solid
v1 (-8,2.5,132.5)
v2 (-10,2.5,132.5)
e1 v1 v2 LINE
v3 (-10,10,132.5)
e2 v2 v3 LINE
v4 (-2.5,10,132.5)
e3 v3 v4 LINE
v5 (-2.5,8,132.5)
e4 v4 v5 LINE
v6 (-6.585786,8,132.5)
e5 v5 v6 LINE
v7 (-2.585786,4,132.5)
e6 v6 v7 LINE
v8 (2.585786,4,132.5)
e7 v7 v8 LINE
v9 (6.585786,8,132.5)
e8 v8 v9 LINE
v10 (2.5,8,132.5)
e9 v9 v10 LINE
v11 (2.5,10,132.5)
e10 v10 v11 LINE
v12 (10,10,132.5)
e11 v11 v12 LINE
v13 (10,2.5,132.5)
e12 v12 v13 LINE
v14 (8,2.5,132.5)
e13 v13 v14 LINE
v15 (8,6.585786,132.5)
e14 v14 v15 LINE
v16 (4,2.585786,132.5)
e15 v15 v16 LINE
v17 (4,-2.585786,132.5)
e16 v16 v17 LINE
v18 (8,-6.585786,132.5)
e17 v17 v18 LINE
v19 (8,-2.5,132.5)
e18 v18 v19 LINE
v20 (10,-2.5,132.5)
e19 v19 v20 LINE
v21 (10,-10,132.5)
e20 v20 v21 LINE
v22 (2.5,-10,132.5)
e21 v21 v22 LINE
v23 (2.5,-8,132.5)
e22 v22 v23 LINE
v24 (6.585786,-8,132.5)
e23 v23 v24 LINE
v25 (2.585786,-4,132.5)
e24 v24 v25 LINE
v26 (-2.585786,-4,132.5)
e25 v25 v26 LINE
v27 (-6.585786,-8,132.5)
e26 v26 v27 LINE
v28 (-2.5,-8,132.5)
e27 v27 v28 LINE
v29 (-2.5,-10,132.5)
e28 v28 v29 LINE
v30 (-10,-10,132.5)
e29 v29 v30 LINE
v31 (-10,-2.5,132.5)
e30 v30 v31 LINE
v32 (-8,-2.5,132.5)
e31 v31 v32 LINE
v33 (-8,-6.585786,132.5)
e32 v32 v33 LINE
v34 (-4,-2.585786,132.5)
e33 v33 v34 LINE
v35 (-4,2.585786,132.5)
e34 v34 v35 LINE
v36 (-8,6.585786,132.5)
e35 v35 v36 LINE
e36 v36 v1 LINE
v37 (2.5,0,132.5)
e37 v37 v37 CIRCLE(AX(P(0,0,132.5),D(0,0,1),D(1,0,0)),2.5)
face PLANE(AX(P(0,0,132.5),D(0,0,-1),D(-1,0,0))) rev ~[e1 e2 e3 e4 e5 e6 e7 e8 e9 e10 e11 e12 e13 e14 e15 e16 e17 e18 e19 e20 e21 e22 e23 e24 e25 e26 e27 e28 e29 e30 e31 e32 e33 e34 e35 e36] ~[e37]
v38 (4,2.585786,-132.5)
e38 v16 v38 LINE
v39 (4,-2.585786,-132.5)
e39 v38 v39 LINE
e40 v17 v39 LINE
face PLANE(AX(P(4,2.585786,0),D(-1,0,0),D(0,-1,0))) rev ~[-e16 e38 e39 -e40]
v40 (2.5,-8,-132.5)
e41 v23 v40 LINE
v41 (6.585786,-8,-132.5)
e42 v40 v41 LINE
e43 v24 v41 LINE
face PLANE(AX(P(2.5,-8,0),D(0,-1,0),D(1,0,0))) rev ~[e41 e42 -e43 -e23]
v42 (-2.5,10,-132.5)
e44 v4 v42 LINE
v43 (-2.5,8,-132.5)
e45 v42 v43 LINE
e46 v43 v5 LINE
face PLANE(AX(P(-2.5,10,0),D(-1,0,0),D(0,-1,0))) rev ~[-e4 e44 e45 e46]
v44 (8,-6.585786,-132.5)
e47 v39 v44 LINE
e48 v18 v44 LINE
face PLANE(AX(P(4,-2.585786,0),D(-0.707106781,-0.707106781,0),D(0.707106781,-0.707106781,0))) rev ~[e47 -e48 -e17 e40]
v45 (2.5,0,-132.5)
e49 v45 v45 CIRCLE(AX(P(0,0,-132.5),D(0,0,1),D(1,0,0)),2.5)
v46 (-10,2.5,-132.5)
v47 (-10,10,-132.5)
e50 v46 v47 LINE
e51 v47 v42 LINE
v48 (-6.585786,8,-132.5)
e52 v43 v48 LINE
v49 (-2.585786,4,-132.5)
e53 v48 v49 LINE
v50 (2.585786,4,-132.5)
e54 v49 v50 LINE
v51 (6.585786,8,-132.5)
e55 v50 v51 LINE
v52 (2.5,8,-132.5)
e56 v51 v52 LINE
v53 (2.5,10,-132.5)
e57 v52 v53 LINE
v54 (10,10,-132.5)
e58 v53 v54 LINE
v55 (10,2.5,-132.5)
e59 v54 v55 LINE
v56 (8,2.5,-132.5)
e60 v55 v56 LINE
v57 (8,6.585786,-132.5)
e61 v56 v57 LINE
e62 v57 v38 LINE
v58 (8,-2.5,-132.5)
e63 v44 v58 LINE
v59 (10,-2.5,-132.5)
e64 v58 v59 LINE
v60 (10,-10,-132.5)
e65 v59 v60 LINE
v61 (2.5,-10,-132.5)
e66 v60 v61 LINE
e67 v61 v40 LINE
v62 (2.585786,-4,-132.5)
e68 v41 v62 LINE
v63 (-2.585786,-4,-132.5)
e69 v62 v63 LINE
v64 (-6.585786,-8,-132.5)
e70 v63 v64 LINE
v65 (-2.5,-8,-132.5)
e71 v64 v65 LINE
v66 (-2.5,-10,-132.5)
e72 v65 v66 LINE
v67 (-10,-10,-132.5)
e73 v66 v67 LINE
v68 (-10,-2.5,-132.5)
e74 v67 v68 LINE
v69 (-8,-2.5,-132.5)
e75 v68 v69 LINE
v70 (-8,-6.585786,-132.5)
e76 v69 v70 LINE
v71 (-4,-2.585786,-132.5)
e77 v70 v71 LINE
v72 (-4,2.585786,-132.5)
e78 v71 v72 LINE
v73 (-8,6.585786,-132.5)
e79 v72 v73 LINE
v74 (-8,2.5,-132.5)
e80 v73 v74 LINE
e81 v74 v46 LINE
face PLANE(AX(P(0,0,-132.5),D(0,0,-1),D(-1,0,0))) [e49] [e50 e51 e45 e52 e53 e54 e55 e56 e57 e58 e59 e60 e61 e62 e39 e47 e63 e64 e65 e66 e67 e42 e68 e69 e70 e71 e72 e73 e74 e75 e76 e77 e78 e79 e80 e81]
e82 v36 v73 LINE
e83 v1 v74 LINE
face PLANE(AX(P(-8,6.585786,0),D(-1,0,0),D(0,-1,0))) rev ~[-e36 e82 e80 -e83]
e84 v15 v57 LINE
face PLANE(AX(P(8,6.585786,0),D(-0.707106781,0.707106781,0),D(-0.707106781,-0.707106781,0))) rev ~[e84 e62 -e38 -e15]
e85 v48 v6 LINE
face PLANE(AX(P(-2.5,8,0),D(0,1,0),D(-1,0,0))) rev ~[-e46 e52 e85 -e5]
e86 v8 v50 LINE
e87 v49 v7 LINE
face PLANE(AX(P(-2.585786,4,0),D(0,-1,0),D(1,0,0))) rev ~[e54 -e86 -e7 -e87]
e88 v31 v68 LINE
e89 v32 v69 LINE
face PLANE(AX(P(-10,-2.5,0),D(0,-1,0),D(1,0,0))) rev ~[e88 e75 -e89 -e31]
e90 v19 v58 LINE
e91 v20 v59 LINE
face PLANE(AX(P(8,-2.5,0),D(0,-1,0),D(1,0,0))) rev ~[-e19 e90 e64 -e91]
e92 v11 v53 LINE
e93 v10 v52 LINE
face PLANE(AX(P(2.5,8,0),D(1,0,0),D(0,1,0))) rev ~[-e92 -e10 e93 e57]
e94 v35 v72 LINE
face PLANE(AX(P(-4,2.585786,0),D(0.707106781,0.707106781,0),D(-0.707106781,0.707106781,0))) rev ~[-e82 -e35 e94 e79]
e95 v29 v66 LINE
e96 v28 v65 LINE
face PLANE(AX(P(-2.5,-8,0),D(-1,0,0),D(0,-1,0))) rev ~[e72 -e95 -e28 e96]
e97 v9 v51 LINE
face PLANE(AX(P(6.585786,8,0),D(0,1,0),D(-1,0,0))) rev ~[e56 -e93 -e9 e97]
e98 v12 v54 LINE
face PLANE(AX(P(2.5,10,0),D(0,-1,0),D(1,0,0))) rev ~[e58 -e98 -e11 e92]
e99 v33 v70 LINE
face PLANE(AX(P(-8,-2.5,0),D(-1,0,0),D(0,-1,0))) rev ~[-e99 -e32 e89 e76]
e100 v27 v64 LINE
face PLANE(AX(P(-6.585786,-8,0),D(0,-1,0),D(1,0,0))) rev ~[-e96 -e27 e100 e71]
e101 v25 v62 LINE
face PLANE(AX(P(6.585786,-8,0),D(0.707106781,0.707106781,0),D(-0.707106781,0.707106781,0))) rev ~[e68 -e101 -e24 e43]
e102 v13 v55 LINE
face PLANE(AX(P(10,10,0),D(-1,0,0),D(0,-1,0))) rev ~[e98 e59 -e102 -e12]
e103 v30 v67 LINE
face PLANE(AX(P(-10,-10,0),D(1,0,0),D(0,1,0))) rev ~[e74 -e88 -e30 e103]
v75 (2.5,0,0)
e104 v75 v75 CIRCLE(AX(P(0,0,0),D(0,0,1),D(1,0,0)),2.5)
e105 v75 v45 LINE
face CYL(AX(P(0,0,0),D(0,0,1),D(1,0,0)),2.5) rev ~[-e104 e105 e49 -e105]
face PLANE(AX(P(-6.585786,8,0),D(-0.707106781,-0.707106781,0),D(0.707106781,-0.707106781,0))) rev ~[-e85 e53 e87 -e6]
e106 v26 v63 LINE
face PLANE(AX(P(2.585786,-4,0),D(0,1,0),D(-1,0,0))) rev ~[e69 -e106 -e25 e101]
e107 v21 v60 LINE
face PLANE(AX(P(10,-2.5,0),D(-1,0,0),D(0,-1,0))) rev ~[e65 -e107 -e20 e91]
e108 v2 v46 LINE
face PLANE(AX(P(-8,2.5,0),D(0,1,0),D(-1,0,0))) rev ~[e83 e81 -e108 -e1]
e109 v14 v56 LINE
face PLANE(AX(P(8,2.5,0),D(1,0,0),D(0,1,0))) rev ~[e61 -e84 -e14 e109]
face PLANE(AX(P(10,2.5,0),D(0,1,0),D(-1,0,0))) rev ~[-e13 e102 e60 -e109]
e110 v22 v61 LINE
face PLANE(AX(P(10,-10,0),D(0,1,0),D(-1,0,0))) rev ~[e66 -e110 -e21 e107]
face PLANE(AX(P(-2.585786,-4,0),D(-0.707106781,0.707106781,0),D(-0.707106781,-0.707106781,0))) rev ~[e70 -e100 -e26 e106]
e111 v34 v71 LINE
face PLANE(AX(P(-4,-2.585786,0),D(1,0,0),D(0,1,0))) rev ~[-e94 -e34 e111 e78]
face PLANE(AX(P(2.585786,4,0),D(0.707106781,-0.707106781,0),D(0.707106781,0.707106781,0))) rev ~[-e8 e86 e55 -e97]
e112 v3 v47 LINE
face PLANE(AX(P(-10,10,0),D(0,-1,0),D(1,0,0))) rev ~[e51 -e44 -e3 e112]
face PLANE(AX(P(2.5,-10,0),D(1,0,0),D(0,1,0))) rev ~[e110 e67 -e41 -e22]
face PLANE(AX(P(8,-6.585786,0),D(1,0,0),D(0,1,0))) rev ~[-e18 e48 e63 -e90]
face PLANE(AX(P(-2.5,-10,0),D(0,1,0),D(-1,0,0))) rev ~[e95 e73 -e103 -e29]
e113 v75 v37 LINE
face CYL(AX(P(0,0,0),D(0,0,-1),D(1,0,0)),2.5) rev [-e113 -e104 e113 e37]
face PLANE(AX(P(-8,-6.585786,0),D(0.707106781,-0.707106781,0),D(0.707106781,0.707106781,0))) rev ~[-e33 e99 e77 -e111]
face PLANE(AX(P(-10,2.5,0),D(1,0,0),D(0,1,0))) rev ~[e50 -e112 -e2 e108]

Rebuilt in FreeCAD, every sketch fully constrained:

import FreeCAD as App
import Part
import Sketcher

doc = App.newDocument("Part")
params = doc.addObject("Spreadsheet::Sheet", "Params")
for row, (alias, value) in enumerate([
    ("sketch1_width", "2 mm"),
    ("sketch1_width2", "7.5 mm"),
    ("pad1_length", "265 mm"),
    ("sketch2_diameter", "5 mm"),
], start=1):
    params.set(f"A{row}", alias)
    params.set(f"B{row}", "=" + value)
    params.setAlias(f"B{row}", alias)

body = doc.addObject("PartDesign::Body", "Body")

# Sketch on XY plane
sketch1 = body.newObject("Sketcher::SketchObject", "Sketch")
sketch1.AttachmentSupport = (doc.getObject("XY_Plane"), [""])
sketch1.MapMode = "FlatFace"
sketch1.addGeometry([
    Part.LineSegment(App.Vector(2.6, 4, 0), App.Vector(-2.6, 4, 0)),  # 0
    Part.LineSegment(App.Vector(-2.6, 4, 0), App.Vector(-6.6, 8, 0)),  # 1
    Part.LineSegment(App.Vector(-6.6, 8, 0), App.Vector(-2.5, 8, 0)),  # 2
    Part.LineSegment(App.Vector(-2.5, 8, 0), App.Vector(-2.5, 10, 0)),  # 3
    Part.LineSegment(App.Vector(-2.5, 10, 0), App.Vector(-10, 10, 0)),  # 4
    Part.LineSegment(App.Vector(-10, 10, 0), App.Vector(-10, 2.5, 0)),  # 5
    Part.LineSegment(App.Vector(-10, 2.5, 0), App.Vector(-8, 2.5, 0)),  # 6
    Part.LineSegment(App.Vector(-8, 2.5, 0), App.Vector(-8, 6.6, 0)),  # 7
    Part.LineSegment(App.Vector(-8, 6.6, 0), App.Vector(-4, 2.6, 0)),  # 8
    Part.LineSegment(App.Vector(-4, 2.6, 0), App.Vector(-4, -2.6, 0)),  # 9
    Part.LineSegment(App.Vector(-4, -2.6, 0), App.Vector(-8, -6.6, 0)),  # 10
    Part.LineSegment(App.Vector(-8, -6.6, 0), App.Vector(-8, -2.5, 0)),  # 11
    Part.LineSegment(App.Vector(-8, -2.5, 0), App.Vector(-10, -2.5, 0)),  # 12
    Part.LineSegment(App.Vector(-10, -2.5, 0), App.Vector(-10, -10, 0)),  # 13
    Part.LineSegment(App.Vector(-10, -10, 0), App.Vector(-2.5, -10, 0)),  # 14
    Part.LineSegment(App.Vector(-2.5, -10, 0), App.Vector(-2.5, -8, 0)),  # 15
    Part.LineSegment(App.Vector(-2.5, -8, 0), App.Vector(-6.6, -8, 0)),  # 16
    Part.LineSegment(App.Vector(-6.6, -8, 0), App.Vector(-2.6, -4, 0)),  # 17
    Part.LineSegment(App.Vector(-2.6, -4, 0), App.Vector(2.6, -4, 0)),  # 18
    Part.LineSegment(App.Vector(2.6, -4, 0), App.Vector(6.6, -8, 0)),  # 19
    Part.LineSegment(App.Vector(6.6, -8, 0), App.Vector(2.5, -8, 0)),  # 20
    Part.LineSegment(App.Vector(2.5, -8, 0), App.Vector(2.5, -10, 0)),  # 21
    Part.LineSegment(App.Vector(2.5, -10, 0), App.Vector(10, -10, 0)),  # 22
    Part.LineSegment(App.Vector(10, -10, 0), App.Vector(10, -2.5, 0)),  # 23
    Part.LineSegment(App.Vector(10, -2.5, 0), App.Vector(8, -2.5, 0)),  # 24
    Part.LineSegment(App.Vector(8, -2.5, 0), App.Vector(8, -6.6, 0)),  # 25
    Part.LineSegment(App.Vector(8, -6.6, 0), App.Vector(4, -2.6, 0)),  # 26
    Part.LineSegment(App.Vector(4, -2.6, 0), App.Vector(4, 2.6, 0)),  # 27
    Part.LineSegment(App.Vector(4, 2.6, 0), App.Vector(8, 6.6, 0)),  # 28
    Part.LineSegment(App.Vector(8, 6.6, 0), App.Vector(8, 2.5, 0)),  # 29
    Part.LineSegment(App.Vector(8, 2.5, 0), App.Vector(10, 2.5, 0)),  # 30
    Part.LineSegment(App.Vector(10, 2.5, 0), App.Vector(10, 10, 0)),  # 31
    Part.LineSegment(App.Vector(10, 10, 0), App.Vector(2.5, 10, 0)),  # 32
    Part.LineSegment(App.Vector(2.5, 10, 0), App.Vector(2.5, 8, 0)),  # 33
    Part.LineSegment(App.Vector(2.5, 8, 0), App.Vector(6.6, 8, 0)),  # 34
    Part.LineSegment(App.Vector(6.6, 8, 0), App.Vector(2.6, 4, 0)),  # 35
], False)
sketch1.addConstraint([
    Sketcher.Constraint("Coincident", 0, 2, 1, 1),
    Sketcher.Constraint("Coincident", 1, 2, 2, 1),
    Sketcher.Constraint("Coincident", 2, 2, 3, 1),
    Sketcher.Constraint("Coincident", 3, 2, 4, 1),
    Sketcher.Constraint("Coincident", 4, 2, 5, 1),
    Sketcher.Constraint("Coincident", 5, 2, 6, 1),
    Sketcher.Constraint("Coincident", 6, 2, 7, 1),
    Sketcher.Constraint("Coincident", 7, 2, 8, 1),
    Sketcher.Constraint("Coincident", 8, 2, 9, 1),
    Sketcher.Constraint("Coincident", 9, 2, 10, 1),
    Sketcher.Constraint("Coincident", 10, 2, 11, 1),
    Sketcher.Constraint("Coincident", 11, 2, 12, 1),
    Sketcher.Constraint("Coincident", 12, 2, 13, 1),
    Sketcher.Constraint("Coincident", 13, 2, 14, 1),
    Sketcher.Constraint("Coincident", 14, 2, 15, 1),
    Sketcher.Constraint("Coincident", 15, 2, 16, 1),
    Sketcher.Constraint("Coincident", 16, 2, 17, 1),
    Sketcher.Constraint("Coincident", 17, 2, 18, 1),
    Sketcher.Constraint("Coincident", 18, 2, 19, 1),
    Sketcher.Constraint("Coincident", 19, 2, 20, 1),
    Sketcher.Constraint("Coincident", 20, 2, 21, 1),
    Sketcher.Constraint("Coincident", 21, 2, 22, 1),
    Sketcher.Constraint("Coincident", 22, 2, 23, 1),
    Sketcher.Constraint("Coincident", 23, 2, 24, 1),
    Sketcher.Constraint("Coincident", 24, 2, 25, 1),
    Sketcher.Constraint("Coincident", 25, 2, 26, 1),
    Sketcher.Constraint("Coincident", 26, 2, 27, 1),
    Sketcher.Constraint("Coincident", 27, 2, 28, 1),
    Sketcher.Constraint("Coincident", 28, 2, 29, 1),
    Sketcher.Constraint("Coincident", 29, 2, 30, 1),
    Sketcher.Constraint("Coincident", 30, 2, 31, 1),
    Sketcher.Constraint("Coincident", 31, 2, 32, 1),
    Sketcher.Constraint("Coincident", 32, 2, 33, 1),
    Sketcher.Constraint("Coincident", 33, 2, 34, 1),
    Sketcher.Constraint("Coincident", 34, 2, 35, 1),
    Sketcher.Constraint("Coincident", 35, 2, 0, 1),
    Sketcher.Constraint("Horizontal", 0),
    Sketcher.Constraint("Horizontal", 2),
    Sketcher.Constraint("Vertical", 3),
    Sketcher.Constraint("Horizontal", 4),
    Sketcher.Constraint("Vertical", 5),
    Sketcher.Constraint("Horizontal", 6),
    Sketcher.Constraint("Vertical", 7),
    Sketcher.Constraint("Vertical", 9),
    Sketcher.Constraint("Vertical", 11),
    Sketcher.Constraint("Horizontal", 12),
    Sketcher.Constraint("Vertical", 13),
    Sketcher.Constraint("Horizontal", 14),
    Sketcher.Constraint("Vertical", 15),
    Sketcher.Constraint("Horizontal", 16),
    Sketcher.Constraint("Horizontal", 18),
    Sketcher.Constraint("Horizontal", 20),
    Sketcher.Constraint("Vertical", 21),
    Sketcher.Constraint("Horizontal", 22),
    Sketcher.Constraint("Vertical", 23),
    Sketcher.Constraint("Horizontal", 24),
    Sketcher.Constraint("Vertical", 25),
    Sketcher.Constraint("Vertical", 27),
    Sketcher.Constraint("Vertical", 29),
    Sketcher.Constraint("Horizontal", 30),
    Sketcher.Constraint("Vertical", 31),
    Sketcher.Constraint("Horizontal", 32),
    Sketcher.Constraint("Vertical", 33),
    Sketcher.Constraint("Horizontal", 34),
    Sketcher.Constraint("Symmetric", 0, 2, 18, 2, -1, 1),
    Sketcher.Constraint("Symmetric", 1, 2, 19, 2, -1, 1),
    Sketcher.Constraint("Symmetric", 3, 2, 21, 2, -1, 1),
    Sketcher.Constraint("Symmetric", 5, 2, 23, 2, -1, 1),
    Sketcher.Constraint("Symmetric", 7, 2, 25, 2, -1, 1),
    Sketcher.Constraint("Symmetric", 8, 2, 26, 2, -1, 1),
    Sketcher.Constraint("Symmetric", 10, 2, 28, 2, -1, 1),
    Sketcher.Constraint("Symmetric", 12, 2, 30, 2, -1, 1),
    Sketcher.Constraint("Symmetric", 14, 2, 32, 2, -1, 1),
    Sketcher.Constraint("Symmetric", 16, 2, 34, 2, -1, 1),
    Sketcher.Constraint("Symmetric", 16, 2, 19, 2, -2),
    Sketcher.Constraint("Symmetric", 14, 2, 21, 2, -2),
    Sketcher.Constraint("Symmetric", 12, 2, 23, 2, -2),
    Sketcher.Constraint("Symmetric", 10, 2, 25, 2, -2),
    Sketcher.Constraint("Parallel", 1, 8),
    Sketcher.Constraint("Perpendicular", 8, 10),
    Sketcher.Constraint("Parallel", 10, 17),
    Sketcher.Constraint("Perpendicular", 26, 28),
    Sketcher.Constraint("Parallel", 28, 35),
    Sketcher.Constraint("Horizontal", 9, 2, 26, 2),
    Sketcher.Constraint("Equal", 30, 3),
    Sketcher.Constraint("Equal", 32, 5),
    Sketcher.Constraint("Equal", 34, 7),
    Sketcher.Constraint("Equal", 18, 9),
    Sketcher.Constraint("Equal", 1, 8),
    Sketcher.Constraint("DistanceX", 6, 1, 6, 2, 2.0),
    Sketcher.Constraint("DistanceX", 4, 2, 4, 1, 7.5),
    Sketcher.Constraint("DistanceY", -1, 1, 0, 2, 4.0),
    Sketcher.Constraint("DistanceY", -1, 1, 1, 2, 8.0),
    Sketcher.Constraint("DistanceX", 0, 2, 0, 1, 5.171573),
])
sketch1.setExpression("Constraints[89]", "Params.sketch1_width")
sketch1.setExpression("Constraints[90]", "Params.sketch1_width2")
pad1 = body.newObject("PartDesign::Pad", "Pad")
pad1.Profile = sketch1
pad1.setExpression("Length", "Params.pad1_length")
pad1.Midplane = True

# Sketch on XY plane
sketch2 = body.newObject("Sketcher::SketchObject", "Sketch001")
sketch2.AttachmentSupport = (doc.getObject("XY_Plane"), [""])
sketch2.MapMode = "FlatFace"
sketch2.addGeometry(Part.Circle(App.Vector(0, 0, 0), App.Vector(0, 0, 1), 2.5), False)
sketch2.addConstraint([
    Sketcher.Constraint("Coincident", 0, 3, -1, 1),
    Sketcher.Constraint("Diameter", 0, 5.0),
])
sketch2.setExpression("Constraints[1]", "Params.sketch2_diameter")
pocket1 = body.newObject("PartDesign::Pocket", "Pocket")
pocket1.Profile = sketch2
pocket1.Type = "ThroughAll"
pocket1.Midplane = True

doc.recompute()
